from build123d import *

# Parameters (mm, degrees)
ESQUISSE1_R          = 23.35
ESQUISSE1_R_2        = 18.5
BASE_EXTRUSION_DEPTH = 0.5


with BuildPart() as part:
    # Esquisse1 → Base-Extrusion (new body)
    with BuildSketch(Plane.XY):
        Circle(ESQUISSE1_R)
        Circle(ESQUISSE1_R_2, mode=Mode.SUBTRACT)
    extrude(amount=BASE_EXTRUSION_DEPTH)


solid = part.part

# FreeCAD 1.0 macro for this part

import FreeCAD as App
import Part
import Sketcher
Q = App.Units.Quantity

doc = App.newDocument("Part")
body = doc.addObject("PartDesign::Body", "Body")

# Sketch on XY plane
sketch1 = doc.addObject("Sketcher::SketchObject", "Sketch")
body.addObject(sketch1)
sketch1.AttachmentSupport = (doc.XY_Plane, [""])
sketch1.MapMode = "FlatFace"
sketch1.addGeometry(Part.Circle(App.Vector(0, 0, 0), App.Vector(0, 0, 1), 23.35), False)
sketch1.addGeometry(Part.Circle(App.Vector(0, 0, 0), App.Vector(0, 0, 1), 18.5), False)
sketch1.addConstraint(Sketcher.Constraint("Coincident", 0, 3, -1, 1))
sketch1.addConstraint(Sketcher.Constraint("Coincident", 1, 3, -1, 1))
sketch1.addConstraint(Sketcher.Constraint("Diameter", 1, Q("37 mm")))
sketch1.addConstraint(Sketcher.Constraint("Diameter", 0, Q("46.7 mm")))
pad1 = doc.addObject("PartDesign::Pad", "Pad")
body.addObject(pad1)
pad1.Profile = sketch1
pad1.Length = 0.5

doc.recompute()
